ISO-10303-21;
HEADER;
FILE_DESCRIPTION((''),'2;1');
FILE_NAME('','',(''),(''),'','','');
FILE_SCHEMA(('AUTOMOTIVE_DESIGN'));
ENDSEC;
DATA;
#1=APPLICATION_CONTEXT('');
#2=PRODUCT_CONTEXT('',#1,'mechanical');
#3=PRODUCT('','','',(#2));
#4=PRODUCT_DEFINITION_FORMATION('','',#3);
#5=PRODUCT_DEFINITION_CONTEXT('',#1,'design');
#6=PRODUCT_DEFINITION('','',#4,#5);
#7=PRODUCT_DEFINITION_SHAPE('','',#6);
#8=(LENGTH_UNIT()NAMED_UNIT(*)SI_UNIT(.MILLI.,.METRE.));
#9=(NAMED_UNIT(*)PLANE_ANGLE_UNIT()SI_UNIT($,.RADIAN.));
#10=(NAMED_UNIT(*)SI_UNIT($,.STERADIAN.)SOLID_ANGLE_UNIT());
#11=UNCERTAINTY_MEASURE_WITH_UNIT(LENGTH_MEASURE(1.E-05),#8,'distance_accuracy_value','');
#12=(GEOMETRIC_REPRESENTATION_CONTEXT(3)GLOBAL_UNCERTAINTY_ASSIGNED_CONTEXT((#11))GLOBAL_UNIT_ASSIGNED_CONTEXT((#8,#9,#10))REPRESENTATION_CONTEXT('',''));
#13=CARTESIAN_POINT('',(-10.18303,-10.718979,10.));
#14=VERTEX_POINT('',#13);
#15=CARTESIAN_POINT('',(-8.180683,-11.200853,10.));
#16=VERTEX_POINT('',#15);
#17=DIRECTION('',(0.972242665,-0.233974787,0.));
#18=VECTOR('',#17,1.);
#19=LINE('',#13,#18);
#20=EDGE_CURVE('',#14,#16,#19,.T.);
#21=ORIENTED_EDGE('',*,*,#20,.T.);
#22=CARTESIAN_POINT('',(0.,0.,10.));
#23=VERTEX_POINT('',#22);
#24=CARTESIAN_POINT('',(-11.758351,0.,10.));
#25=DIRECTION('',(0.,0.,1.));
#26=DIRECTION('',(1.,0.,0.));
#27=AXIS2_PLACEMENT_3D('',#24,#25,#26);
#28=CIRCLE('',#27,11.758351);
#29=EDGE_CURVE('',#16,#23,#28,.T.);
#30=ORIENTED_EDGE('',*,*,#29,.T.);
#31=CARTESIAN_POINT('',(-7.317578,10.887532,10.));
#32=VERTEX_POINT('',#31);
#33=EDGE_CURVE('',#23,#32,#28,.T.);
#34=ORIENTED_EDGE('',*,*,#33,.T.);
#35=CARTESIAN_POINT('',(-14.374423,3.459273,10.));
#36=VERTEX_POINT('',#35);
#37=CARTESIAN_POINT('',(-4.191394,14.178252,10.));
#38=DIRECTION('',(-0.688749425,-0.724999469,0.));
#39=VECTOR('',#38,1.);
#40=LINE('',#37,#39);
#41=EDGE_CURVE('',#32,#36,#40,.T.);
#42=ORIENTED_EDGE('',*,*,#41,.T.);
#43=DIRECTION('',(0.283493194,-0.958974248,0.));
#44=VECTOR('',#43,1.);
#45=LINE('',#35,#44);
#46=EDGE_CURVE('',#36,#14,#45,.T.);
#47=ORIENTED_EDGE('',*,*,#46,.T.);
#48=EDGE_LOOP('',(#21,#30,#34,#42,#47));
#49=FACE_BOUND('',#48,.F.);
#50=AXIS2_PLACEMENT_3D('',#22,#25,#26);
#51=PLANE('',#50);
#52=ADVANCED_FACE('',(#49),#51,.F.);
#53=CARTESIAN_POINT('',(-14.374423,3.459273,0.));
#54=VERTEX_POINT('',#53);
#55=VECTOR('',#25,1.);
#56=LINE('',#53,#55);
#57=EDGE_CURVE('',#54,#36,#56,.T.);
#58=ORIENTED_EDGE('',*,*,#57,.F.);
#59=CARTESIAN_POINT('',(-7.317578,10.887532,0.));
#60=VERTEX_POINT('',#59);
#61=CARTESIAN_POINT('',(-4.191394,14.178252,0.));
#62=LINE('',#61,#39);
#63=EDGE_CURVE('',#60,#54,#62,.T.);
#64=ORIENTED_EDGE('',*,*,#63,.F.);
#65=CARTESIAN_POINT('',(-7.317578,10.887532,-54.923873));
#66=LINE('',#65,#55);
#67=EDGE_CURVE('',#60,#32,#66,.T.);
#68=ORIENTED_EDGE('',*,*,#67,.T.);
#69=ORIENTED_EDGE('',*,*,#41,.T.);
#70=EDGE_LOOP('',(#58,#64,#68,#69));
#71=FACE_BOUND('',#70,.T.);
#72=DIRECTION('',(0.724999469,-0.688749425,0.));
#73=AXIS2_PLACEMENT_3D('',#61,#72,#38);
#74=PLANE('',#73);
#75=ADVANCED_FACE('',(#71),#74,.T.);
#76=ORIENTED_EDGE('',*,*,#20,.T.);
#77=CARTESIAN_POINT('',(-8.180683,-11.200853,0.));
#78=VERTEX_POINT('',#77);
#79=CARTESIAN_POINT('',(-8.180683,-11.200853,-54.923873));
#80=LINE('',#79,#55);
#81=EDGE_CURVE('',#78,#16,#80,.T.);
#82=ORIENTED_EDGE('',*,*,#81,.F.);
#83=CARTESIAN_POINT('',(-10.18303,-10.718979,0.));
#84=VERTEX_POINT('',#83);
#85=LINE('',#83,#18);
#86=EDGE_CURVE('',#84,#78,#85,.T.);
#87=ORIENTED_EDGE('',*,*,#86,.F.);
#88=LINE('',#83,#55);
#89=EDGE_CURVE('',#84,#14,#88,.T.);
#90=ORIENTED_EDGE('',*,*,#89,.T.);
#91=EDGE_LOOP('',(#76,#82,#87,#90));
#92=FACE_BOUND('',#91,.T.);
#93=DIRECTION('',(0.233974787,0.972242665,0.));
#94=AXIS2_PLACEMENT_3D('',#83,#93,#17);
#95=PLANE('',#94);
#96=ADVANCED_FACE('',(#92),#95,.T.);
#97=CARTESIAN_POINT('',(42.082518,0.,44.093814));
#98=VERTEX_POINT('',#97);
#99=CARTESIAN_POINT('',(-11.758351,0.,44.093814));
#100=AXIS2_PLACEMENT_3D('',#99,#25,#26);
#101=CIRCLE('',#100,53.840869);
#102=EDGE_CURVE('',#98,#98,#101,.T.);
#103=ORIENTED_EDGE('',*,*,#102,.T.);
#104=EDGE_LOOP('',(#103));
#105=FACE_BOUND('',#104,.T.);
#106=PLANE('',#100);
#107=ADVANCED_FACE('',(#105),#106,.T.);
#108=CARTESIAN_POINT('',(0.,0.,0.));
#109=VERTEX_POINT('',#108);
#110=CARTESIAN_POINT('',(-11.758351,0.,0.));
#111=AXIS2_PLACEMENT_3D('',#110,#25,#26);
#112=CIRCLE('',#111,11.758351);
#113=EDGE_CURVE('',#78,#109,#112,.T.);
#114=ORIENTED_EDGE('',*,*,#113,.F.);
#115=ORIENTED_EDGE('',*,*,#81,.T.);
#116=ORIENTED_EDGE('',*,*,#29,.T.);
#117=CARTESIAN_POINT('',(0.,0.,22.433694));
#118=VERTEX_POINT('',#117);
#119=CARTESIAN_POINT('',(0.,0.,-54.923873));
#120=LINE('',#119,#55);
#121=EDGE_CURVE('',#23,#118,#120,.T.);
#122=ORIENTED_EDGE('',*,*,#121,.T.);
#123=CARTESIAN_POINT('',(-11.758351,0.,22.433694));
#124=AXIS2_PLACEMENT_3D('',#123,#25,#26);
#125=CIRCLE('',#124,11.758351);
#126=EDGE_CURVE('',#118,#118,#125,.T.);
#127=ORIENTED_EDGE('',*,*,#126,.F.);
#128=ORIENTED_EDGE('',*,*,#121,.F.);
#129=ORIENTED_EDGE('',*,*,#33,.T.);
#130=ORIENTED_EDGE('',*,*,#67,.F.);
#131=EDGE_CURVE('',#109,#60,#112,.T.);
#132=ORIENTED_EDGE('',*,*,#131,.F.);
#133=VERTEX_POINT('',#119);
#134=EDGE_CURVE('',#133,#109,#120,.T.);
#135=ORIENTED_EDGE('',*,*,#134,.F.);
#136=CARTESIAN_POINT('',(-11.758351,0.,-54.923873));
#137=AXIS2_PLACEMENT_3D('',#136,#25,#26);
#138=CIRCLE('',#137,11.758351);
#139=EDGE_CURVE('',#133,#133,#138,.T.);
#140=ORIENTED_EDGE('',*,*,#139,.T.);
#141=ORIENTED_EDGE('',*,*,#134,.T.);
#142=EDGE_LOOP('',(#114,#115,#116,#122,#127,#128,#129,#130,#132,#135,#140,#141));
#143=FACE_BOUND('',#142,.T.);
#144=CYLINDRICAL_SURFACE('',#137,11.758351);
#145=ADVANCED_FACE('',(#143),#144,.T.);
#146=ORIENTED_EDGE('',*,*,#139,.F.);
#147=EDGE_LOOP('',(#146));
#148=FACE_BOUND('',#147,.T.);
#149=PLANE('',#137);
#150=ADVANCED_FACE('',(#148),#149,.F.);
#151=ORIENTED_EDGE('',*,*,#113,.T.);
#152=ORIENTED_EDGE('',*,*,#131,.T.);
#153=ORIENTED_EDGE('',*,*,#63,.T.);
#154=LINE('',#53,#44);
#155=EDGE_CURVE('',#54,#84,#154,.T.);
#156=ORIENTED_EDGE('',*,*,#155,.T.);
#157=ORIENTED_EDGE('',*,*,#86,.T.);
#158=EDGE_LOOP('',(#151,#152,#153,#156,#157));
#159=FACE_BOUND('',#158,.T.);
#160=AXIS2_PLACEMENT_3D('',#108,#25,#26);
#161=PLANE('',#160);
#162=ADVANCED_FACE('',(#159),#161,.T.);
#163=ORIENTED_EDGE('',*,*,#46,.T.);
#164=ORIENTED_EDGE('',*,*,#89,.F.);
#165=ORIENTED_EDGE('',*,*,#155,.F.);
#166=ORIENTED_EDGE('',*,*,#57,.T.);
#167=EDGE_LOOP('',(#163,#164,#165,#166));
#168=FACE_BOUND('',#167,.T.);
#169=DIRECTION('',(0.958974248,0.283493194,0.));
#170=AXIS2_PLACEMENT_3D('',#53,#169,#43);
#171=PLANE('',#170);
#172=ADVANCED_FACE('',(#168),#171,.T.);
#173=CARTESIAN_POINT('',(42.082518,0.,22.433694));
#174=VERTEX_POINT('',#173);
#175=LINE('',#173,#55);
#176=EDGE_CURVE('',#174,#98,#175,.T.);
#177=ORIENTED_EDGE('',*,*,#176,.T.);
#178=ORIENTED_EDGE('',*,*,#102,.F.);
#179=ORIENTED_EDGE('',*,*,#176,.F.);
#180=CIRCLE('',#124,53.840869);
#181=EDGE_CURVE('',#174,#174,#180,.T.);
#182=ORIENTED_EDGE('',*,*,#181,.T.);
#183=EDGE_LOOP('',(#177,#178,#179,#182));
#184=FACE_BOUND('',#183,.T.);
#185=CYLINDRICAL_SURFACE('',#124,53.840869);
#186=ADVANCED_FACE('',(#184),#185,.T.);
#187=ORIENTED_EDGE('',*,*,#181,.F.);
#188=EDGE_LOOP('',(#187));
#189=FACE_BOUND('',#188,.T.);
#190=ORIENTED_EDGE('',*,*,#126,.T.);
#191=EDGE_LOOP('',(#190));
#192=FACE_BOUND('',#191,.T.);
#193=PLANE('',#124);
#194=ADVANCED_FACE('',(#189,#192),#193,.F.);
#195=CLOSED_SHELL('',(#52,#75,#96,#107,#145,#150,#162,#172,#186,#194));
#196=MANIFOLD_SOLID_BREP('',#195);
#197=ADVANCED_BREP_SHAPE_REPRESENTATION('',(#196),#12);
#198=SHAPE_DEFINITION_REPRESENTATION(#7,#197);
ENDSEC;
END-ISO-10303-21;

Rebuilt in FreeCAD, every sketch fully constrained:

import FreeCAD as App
import Part
import Sketcher
Q = App.Units.Quantity

doc = App.newDocument("Part")
body = doc.addObject("PartDesign::Body", "Body")

sketch1 = body.newObject("Sketcher::SketchObject", "Sketch")
sketch1.AttachmentSupport = (doc.getObject("XZ_Plane"), [""])
sketch1.MapMode = "FlatFace"
sketch1.addGeometry(Part.LineSegment(App.Vector(-12, 44, 0), App.Vector(-12, -55, 0)), False)
sketch1.addGeometry(Part.LineSegment(App.Vector(-12, -55, 0), App.Vector(0, -55, 0)), False)
sketch1.addGeometry(Part.LineSegment(App.Vector(0, -55, 0), App.Vector(0, 22, 0)), False)
sketch1.addGeometry(Part.LineSegment(App.Vector(0, 22, 0), App.Vector(42, 22, 0)), False)
sketch1.addGeometry(Part.LineSegment(App.Vector(42, 22, 0), App.Vector(42, 44, 0)), False)
sketch1.addGeometry(Part.LineSegment(App.Vector(42, 44, 0), App.Vector(-12, 44, 0)), False)
sketch1.addGeometry(Part.LineSegment(App.Vector(-12, -55, 0), App.Vector(-12, 44, 0)), True)
sketch1.addConstraint(Sketcher.Constraint("Coincident", 0, 2, 1, 1))
sketch1.addConstraint(Sketcher.Constraint("Coincident", 1, 2, 2, 1))
sketch1.addConstraint(Sketcher.Constraint("Coincident", 2, 2, 3, 1))
sketch1.addConstraint(Sketcher.Constraint("Coincident", 3, 2, 4, 1))
sketch1.addConstraint(Sketcher.Constraint("Coincident", 4, 2, 5, 1))
sketch1.addConstraint(Sketcher.Constraint("Coincident", 5, 2, 0, 1))
sketch1.addConstraint(Sketcher.Constraint("Vertical", 0))
sketch1.addConstraint(Sketcher.Constraint("Horizontal", 1))
sketch1.addConstraint(Sketcher.Constraint("Vertical", 2))
sketch1.addConstraint(Sketcher.Constraint("Horizontal", 3))
sketch1.addConstraint(Sketcher.Constraint("Vertical", 4))
sketch1.addConstraint(Sketcher.Constraint("Horizontal", 5))
sketch1.addConstraint(Sketcher.Constraint("Vertical", 6))
sketch1.addConstraint(Sketcher.Constraint("Coincident", 6, 1, 0, 2))
sketch1.addConstraint(Sketcher.Constraint("PointOnObject", 1, 2, -2))
sketch1.addConstraint(Sketcher.Constraint("Horizontal", 4, 2, 6, 2))
sketch1.addConstraint(Sketcher.Constraint("DistanceX", 1, 1, 1, 2, Q("11.758351 mm")))
sketch1.addConstraint(Sketcher.Constraint("DistanceX", 5, 2, 5, 1, Q("53.840869 mm")))
sketch1.addConstraint(Sketcher.Constraint("DistanceY", 4, 1, 4, 2, Q("21.66012 mm")))
sketch1.addConstraint(Sketcher.Constraint("DistanceY", 0, 2, 0, 1, Q("99.017687 mm")))
sketch1.addConstraint(Sketcher.Constraint("DistanceY", 0, 2, -1, 1, Q("54.923873 mm")))
revolution = body.newObject("PartDesign::Revolution", "Revolution")
revolution.Profile = sketch1
revolution.ReferenceAxis = (sketch1, ["Axis0"])
revolution.Angle = 360

sketch2 = body.newObject("Sketcher::SketchObject", "Sketch001")
sketch2.AttachmentSupport = (doc.getObject("XY_Plane"), [""])
sketch2.MapMode = "FlatFace"
sketch2.addGeometry(Part.LineSegment(App.Vector(-4, 14, 0), App.Vector(-14, 3, 0)), False)
sketch2.addGeometry(Part.LineSegment(App.Vector(-14, 3, 0), App.Vector(-10, -11, 0)), False)
sketch2.addGeometry(Part.LineSegment(App.Vector(-10, -11, 0), App.Vector(4, -14, 0)), False)
sketch2.addGeometry(Part.LineSegment(App.Vector(4, -14, 0), App.Vector(14, -3, 0)), False)
sketch2.addGeometry(Part.LineSegment(App.Vector(14, -3, 0), App.Vector(10, 11, 0)), False)
sketch2.addGeometry(Part.LineSegment(App.Vector(10, 11, 0), App.Vector(-4, 14, 0)), False)
sketch2.addConstraint(Sketcher.Constraint("Coincident", 0, 2, 1, 1))
sketch2.addConstraint(Sketcher.Constraint("Coincident", 1, 2, 2, 1))
sketch2.addConstraint(Sketcher.Constraint("Coincident", 2, 2, 3, 1))
sketch2.addConstraint(Sketcher.Constraint("Coincident", 3, 2, 4, 1))
sketch2.addConstraint(Sketcher.Constraint("Coincident", 4, 2, 5, 1))
sketch2.addConstraint(Sketcher.Constraint("Coincident", 5, 2, 0, 1))
sketch2.addConstraint(Sketcher.Constraint("Symmetric", 0, 2, 3, 2, -1, 1))
sketch2.addConstraint(Sketcher.Constraint("Symmetric", 1, 2, 4, 2, -1, 1))
sketch2.addConstraint(Sketcher.Constraint("Symmetric", 2, 2, 5, 2, -1, 1))
sketch2.addConstraint(Sketcher.Constraint("Equal", 0, 1))
sketch2.addConstraint(Sketcher.Constraint("Equal", 1, 2))
sketch2.addConstraint(Sketcher.Constraint("Distance", 0, Q("14.784809 mm")))
sketch2.addConstraint(Sketcher.Constraint("DistanceX", 1, 2, -1, 1, Q("10.18303 mm")))
sketch2.addConstraint(Sketcher.Constraint("DistanceY", 1, 2, -1, 1, Q("10.718979 mm")))
sketch2.addConstraint(Sketcher.Constraint("DistanceY", 1, 2, 0, 2, Q("14.178252 mm")))
pocket1 = body.newObject("PartDesign::Pocket", "Pocket")
pocket1.Profile = sketch2
pocket1.Length = 10
pocket1.Reversed = True

doc.recompute()
